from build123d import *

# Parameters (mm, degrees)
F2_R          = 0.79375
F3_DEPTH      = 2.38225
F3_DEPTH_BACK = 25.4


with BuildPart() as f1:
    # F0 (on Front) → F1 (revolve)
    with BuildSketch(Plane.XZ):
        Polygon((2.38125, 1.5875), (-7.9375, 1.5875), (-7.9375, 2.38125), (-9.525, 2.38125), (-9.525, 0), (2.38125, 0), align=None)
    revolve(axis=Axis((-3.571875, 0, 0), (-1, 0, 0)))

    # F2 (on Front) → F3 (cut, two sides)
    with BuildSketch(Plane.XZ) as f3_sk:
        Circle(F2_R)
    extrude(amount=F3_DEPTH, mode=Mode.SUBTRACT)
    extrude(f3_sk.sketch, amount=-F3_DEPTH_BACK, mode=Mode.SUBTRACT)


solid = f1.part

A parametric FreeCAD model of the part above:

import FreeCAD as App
import Part
import Sketcher
from FreeCAD import Vector
Q = App.Units.Quantity

doc = App.newDocument("Part")
body = doc.addObject("PartDesign::Body", "Body")

# Sketch on XZ plane
sketch1 = body.newObject("Sketcher::SketchObject", "Sketch")
sketch1.AttachmentSupport = (doc.getObject("XZ_Plane"), [""])
sketch1.MapMode = "FlatFace"
sketch1.addGeometry(Part.LineSegment(Vector(2.4, 1.6, 0), Vector(-7.9, 1.6, 0)), False)
sketch1.addGeometry(Part.LineSegment(Vector(-7.9, 1.6, 0), Vector(-7.9, 2.4, 0)), False)
sketch1.addGeometry(Part.LineSegment(Vector(-7.9, 2.4, 0), Vector(-9.5, 2.4, 0)), False)
sketch1.addGeometry(Part.LineSegment(Vector(-9.5, 2.4, 0), Vector(-9.5, 0, 0)), False)
sketch1.addGeometry(Part.LineSegment(Vector(-9.5, 0, 0), Vector(2.4, 0, 0)), False)
sketch1.addGeometry(Part.LineSegment(Vector(2.4, 0, 0), Vector(2.4, 1.6, 0)), False)
sketch1.addConstraint(Sketcher.Constraint("Coincident", 0, 2, 1, 1))
sketch1.addConstraint(Sketcher.Constraint("Coincident", 1, 2, 2, 1))
sketch1.addConstraint(Sketcher.Constraint("Coincident", 2, 2, 3, 1))
sketch1.addConstraint(Sketcher.Constraint("Coincident", 3, 2, 4, 1))
sketch1.addConstraint(Sketcher.Constraint("Coincident", 4, 2, 5, 1))
sketch1.addConstraint(Sketcher.Constraint("Coincident", 5, 2, 0, 1))
sketch1.addConstraint(Sketcher.Constraint("Horizontal", 0))
sketch1.addConstraint(Sketcher.Constraint("Vertical", 1))
sketch1.addConstraint(Sketcher.Constraint("Horizontal", 2))
sketch1.addConstraint(Sketcher.Constraint("Vertical", 3))
sketch1.addConstraint(Sketcher.Constraint("Horizontal", 4))
sketch1.addConstraint(Sketcher.Constraint("Vertical", 5))
sketch1.addConstraint(Sketcher.Constraint("PointOnObject", 3, 2, -1))
sketch1.addConstraint(Sketcher.Constraint("Equal", 2, 5))
sketch1.addConstraint(Sketcher.Constraint("DistanceX", 0, 2, 0, 1, Q("0.40625 in")))
sketch1.addConstraint(Sketcher.Constraint("DistanceX", 2, 2, 2, 1, Q("0.0625 in")))
sketch1.addConstraint(Sketcher.Constraint("DistanceY", 1, 1, 1, 2, Q("0.03125 in")))
sketch1.addConstraint(Sketcher.Constraint("DistanceX", 0, 2, -1, 1, Q("0.3125 in")))
revolution = body.newObject("PartDesign::Revolution", "Revolution")
revolution.Profile = sketch1
revolution.ReferenceAxis = (sketch1, ["H_Axis"])
revolution.Angle = 360

# Sketch on XZ plane
sketch2 = body.newObject("Sketcher::SketchObject", "Sketch001")
sketch2.AttachmentSupport = (doc.getObject("XZ_Plane"), [""])
sketch2.MapMode = "FlatFace"
sketch2.addGeometry(Part.Circle(Vector(0, 0, 0), Vector(0, 0, 1), 0.8), False)
sketch2.addConstraint(Sketcher.Constraint("Coincident", 0, 3, -1, 1))
sketch2.addConstraint(Sketcher.Constraint("Diameter", 0, Q("0.0625 in")))
pocket1 = body.newObject("PartDesign::Pocket", "Pocket")
pocket1.Profile = sketch2
pocket1.Type = "ThroughAll"
pocket1.Midplane = True

doc.recompute()
